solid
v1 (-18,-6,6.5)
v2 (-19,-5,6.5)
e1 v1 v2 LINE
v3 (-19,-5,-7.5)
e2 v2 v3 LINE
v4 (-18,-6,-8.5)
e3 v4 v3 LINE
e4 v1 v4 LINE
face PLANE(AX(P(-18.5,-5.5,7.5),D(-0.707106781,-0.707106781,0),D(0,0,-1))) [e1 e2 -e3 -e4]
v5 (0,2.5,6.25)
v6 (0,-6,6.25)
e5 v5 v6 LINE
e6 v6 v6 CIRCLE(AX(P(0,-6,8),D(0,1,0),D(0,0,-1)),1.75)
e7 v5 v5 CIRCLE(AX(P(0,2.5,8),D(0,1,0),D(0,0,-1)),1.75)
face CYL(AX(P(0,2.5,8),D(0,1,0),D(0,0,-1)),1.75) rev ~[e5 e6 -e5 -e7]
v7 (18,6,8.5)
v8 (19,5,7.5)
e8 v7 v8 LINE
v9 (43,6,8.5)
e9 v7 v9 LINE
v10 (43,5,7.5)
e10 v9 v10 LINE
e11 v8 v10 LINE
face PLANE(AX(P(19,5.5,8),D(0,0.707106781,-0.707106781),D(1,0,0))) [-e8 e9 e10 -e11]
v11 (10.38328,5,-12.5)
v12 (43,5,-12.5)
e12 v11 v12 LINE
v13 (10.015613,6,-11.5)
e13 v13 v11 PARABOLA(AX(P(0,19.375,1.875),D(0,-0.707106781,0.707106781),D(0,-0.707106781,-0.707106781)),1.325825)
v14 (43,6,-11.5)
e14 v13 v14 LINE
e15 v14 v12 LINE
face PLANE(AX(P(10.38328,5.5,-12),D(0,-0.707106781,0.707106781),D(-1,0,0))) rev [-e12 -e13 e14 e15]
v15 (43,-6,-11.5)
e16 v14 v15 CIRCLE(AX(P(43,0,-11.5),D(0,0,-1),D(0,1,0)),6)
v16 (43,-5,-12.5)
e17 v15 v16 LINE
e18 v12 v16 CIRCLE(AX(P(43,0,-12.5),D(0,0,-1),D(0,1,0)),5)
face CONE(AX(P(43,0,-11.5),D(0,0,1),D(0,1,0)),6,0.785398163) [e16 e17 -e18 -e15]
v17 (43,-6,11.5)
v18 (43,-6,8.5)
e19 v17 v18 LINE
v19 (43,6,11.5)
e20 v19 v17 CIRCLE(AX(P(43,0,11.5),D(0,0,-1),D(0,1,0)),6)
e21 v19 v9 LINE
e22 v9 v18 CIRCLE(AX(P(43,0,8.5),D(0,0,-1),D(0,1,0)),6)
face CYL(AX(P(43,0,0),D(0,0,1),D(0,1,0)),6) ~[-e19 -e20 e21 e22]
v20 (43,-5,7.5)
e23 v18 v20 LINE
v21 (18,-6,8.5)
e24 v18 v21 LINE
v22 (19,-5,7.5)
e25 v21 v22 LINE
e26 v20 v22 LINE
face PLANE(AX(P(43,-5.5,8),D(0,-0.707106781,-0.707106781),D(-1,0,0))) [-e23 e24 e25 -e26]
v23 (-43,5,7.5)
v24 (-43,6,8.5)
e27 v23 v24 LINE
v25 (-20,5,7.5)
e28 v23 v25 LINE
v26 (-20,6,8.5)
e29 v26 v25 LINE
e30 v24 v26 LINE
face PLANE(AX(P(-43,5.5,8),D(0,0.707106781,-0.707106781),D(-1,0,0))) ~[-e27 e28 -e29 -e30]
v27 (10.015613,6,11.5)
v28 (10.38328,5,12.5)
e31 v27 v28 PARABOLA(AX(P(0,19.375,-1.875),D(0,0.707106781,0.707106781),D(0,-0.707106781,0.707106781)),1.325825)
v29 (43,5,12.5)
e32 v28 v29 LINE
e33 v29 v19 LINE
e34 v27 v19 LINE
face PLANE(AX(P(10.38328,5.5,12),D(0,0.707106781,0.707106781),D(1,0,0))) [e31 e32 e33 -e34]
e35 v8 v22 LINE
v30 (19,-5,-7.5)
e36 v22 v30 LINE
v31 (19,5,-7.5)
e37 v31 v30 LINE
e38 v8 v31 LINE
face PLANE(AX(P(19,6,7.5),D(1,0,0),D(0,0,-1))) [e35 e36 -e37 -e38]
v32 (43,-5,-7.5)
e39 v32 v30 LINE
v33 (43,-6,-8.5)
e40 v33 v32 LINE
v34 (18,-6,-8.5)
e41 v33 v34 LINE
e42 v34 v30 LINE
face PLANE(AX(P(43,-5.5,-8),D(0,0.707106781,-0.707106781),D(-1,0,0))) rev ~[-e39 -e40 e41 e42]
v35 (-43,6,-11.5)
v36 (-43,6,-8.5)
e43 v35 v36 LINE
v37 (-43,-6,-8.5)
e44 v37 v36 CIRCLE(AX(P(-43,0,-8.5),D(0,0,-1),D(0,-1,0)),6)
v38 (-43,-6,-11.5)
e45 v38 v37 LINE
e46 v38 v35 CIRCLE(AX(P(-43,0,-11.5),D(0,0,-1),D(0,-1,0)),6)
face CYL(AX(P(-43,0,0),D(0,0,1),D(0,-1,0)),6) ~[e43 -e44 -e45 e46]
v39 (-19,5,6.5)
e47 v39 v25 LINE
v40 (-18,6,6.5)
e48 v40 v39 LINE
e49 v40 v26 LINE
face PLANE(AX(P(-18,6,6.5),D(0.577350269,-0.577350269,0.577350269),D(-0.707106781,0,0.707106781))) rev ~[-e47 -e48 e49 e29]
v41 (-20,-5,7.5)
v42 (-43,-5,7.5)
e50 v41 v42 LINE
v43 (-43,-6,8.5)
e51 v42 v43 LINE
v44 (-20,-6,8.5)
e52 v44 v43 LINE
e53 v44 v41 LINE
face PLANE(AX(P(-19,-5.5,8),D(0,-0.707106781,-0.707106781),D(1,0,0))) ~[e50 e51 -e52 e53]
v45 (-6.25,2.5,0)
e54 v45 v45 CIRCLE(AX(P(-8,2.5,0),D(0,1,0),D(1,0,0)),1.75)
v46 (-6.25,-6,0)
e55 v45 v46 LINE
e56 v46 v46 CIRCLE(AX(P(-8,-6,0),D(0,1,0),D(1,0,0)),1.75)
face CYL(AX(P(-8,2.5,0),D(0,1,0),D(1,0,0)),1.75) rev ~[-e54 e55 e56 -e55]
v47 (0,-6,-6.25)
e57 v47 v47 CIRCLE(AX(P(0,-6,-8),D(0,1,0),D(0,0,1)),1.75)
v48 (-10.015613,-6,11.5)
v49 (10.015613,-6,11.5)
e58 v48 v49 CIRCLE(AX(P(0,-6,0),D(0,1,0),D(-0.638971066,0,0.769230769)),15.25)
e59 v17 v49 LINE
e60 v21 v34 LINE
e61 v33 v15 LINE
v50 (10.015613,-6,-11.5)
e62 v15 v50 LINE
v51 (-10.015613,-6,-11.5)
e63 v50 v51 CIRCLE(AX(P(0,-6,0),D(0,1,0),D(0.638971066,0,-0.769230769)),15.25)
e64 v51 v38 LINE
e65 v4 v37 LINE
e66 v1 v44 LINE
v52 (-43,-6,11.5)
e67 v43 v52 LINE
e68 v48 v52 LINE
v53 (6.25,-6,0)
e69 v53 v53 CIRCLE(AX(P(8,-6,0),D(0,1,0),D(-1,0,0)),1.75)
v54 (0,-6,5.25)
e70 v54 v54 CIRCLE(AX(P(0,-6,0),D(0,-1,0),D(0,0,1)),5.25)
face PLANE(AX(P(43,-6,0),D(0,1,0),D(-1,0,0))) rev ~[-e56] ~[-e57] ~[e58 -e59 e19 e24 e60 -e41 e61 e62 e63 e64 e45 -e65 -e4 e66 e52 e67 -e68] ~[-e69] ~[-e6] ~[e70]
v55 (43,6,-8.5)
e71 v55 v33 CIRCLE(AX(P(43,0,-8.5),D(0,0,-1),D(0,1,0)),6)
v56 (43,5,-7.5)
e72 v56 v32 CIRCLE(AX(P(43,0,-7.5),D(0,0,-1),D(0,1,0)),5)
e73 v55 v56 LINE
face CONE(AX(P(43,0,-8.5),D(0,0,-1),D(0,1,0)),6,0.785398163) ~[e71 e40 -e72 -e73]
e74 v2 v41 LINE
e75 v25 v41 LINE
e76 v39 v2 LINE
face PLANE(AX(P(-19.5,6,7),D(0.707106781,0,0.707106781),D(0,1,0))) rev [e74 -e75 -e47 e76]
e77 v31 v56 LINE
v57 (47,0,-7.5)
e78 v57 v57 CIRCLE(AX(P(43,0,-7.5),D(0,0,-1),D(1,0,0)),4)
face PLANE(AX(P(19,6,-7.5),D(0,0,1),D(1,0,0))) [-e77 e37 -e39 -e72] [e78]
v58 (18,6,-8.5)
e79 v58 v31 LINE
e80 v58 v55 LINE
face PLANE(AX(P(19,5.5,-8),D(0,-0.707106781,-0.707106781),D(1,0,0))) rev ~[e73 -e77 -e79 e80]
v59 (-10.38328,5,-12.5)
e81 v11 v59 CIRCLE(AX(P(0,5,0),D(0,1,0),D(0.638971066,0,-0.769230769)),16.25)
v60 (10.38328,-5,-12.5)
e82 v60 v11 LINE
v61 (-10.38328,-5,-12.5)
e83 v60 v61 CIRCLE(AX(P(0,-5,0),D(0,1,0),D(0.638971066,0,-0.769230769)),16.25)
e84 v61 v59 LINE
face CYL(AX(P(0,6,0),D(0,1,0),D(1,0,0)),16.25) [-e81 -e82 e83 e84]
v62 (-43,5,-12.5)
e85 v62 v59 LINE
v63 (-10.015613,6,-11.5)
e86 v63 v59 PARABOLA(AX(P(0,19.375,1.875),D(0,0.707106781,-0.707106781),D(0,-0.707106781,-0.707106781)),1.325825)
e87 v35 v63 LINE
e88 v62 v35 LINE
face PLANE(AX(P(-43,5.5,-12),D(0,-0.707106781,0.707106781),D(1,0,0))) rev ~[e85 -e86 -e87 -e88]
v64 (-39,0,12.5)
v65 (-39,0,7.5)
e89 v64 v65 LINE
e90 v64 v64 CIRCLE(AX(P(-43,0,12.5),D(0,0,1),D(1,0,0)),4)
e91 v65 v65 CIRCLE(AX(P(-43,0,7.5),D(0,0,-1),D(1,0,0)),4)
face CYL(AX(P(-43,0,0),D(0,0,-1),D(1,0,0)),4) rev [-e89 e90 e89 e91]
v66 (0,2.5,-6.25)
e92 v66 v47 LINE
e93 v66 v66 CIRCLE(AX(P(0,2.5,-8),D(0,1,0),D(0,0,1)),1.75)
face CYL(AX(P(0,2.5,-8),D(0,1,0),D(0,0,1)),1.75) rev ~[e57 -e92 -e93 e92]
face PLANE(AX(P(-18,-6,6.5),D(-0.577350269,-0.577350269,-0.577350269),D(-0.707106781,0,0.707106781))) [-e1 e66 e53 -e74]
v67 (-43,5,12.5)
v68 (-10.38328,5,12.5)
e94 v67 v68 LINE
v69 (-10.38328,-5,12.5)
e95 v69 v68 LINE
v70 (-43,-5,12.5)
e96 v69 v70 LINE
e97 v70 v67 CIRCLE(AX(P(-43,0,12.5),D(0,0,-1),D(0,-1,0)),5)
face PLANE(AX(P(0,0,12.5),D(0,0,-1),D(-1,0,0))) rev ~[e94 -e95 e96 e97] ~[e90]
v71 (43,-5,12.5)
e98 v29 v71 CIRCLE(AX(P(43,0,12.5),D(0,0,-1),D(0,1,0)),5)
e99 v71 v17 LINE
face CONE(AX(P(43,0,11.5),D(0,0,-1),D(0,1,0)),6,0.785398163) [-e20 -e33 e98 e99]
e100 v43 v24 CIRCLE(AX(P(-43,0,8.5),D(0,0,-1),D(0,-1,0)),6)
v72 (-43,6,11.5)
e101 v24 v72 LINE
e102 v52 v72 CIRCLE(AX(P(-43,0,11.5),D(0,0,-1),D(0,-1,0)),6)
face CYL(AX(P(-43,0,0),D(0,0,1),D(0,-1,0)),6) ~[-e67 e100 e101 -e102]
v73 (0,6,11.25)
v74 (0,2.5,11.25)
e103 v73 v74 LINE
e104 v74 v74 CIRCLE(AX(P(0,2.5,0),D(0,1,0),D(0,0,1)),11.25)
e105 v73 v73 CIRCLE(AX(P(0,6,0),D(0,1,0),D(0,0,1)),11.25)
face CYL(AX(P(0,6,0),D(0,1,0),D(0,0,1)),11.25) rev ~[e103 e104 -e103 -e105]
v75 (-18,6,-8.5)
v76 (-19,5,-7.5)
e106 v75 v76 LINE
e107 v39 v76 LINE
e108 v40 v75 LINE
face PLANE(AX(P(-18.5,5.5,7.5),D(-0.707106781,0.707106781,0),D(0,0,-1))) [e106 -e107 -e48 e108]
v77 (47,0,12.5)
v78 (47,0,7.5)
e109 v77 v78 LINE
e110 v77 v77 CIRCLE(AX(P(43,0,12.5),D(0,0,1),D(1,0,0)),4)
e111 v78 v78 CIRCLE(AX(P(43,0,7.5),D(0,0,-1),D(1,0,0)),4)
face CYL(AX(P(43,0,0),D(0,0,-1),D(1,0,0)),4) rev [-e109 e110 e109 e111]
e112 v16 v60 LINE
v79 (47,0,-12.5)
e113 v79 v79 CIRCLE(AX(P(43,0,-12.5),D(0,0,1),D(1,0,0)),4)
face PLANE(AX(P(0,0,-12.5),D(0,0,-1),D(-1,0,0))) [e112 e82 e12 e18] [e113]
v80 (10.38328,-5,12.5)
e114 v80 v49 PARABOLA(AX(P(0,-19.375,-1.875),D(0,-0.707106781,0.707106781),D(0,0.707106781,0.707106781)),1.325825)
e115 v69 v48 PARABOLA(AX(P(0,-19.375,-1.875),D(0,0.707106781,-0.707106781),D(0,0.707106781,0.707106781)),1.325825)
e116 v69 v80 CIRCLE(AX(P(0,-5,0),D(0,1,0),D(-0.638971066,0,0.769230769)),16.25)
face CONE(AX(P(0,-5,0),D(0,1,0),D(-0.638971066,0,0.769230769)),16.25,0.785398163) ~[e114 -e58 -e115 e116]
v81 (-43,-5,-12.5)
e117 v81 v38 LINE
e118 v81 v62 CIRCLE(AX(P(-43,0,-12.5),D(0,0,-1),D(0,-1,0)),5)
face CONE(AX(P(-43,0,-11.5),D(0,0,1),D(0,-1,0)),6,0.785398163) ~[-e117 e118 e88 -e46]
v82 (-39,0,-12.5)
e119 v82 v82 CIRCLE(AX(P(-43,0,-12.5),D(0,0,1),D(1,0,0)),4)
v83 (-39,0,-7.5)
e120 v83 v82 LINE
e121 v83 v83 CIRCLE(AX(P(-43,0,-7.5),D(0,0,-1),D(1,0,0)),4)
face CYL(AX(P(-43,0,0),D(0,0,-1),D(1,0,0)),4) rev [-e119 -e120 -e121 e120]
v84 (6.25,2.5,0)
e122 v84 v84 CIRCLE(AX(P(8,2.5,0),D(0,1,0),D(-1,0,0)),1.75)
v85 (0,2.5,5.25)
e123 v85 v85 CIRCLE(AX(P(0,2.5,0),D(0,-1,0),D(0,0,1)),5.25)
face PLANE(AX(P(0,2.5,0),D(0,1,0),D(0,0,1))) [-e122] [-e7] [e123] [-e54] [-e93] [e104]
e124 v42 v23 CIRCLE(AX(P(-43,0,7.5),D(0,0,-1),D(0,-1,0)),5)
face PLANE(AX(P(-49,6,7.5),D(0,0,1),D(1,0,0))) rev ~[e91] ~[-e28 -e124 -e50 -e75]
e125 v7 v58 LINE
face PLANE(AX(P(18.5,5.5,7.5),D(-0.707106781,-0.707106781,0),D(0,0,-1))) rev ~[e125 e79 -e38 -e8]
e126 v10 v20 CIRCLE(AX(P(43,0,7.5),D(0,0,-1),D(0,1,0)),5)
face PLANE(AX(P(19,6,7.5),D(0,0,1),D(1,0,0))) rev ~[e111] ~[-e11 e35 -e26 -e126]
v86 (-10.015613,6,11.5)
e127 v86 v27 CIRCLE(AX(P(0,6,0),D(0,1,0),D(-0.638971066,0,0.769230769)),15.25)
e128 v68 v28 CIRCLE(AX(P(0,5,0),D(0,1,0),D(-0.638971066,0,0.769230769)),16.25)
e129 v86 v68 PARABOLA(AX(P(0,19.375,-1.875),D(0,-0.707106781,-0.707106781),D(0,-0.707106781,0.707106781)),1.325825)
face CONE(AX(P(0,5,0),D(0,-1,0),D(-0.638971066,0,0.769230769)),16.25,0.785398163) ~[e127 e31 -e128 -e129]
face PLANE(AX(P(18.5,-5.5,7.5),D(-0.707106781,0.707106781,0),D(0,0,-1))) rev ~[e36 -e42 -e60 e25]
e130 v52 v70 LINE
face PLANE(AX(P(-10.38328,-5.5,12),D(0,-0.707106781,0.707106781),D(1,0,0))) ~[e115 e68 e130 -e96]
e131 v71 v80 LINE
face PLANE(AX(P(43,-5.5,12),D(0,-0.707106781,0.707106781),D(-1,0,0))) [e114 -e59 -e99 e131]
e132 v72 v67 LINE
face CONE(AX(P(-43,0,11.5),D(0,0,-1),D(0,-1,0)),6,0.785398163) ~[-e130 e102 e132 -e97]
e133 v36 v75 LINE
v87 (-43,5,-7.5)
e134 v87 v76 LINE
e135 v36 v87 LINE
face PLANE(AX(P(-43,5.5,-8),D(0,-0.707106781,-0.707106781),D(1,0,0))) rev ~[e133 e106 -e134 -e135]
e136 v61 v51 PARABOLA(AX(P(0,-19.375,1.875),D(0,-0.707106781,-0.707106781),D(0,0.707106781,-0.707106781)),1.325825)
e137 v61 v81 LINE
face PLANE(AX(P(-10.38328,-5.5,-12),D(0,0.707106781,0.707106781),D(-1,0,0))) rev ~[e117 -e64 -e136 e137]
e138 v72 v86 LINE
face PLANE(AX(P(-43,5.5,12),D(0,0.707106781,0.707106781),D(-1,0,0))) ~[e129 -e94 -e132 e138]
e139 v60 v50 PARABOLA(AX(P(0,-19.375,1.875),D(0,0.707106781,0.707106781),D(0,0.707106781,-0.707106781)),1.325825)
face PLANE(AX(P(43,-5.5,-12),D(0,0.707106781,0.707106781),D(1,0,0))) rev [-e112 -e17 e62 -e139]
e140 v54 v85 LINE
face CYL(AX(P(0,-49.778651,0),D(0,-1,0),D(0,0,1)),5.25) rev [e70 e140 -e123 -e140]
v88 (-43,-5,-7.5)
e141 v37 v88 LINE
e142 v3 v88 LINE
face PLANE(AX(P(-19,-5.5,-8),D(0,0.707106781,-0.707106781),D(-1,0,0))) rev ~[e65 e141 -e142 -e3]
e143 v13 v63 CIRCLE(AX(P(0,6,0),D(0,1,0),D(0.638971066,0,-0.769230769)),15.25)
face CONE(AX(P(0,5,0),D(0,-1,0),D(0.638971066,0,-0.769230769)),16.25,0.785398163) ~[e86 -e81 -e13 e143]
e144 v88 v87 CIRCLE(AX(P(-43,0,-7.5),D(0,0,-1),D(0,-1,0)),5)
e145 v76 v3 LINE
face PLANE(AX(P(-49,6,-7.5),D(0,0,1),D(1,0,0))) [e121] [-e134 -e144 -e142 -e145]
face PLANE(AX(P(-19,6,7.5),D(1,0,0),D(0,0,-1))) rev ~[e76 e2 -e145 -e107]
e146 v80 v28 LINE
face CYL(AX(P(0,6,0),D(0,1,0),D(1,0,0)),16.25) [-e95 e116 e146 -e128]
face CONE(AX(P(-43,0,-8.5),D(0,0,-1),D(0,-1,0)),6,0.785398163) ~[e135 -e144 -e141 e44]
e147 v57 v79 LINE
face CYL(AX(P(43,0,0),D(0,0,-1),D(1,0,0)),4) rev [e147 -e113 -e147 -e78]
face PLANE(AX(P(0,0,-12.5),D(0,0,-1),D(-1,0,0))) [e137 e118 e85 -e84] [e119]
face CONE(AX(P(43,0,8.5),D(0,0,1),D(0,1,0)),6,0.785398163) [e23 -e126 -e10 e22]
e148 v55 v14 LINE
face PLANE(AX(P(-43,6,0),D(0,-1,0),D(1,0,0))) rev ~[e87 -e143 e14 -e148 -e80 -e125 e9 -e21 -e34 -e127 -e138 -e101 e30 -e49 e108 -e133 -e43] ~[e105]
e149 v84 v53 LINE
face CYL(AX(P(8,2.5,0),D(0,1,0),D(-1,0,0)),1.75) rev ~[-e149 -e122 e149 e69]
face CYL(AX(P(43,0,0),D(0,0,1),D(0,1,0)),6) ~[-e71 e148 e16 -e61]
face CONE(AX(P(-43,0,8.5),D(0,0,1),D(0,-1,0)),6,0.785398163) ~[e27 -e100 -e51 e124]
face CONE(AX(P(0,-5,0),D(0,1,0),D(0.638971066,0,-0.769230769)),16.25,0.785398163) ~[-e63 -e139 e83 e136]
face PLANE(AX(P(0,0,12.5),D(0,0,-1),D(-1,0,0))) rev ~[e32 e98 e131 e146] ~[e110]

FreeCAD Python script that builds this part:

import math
import FreeCAD as App
import Part
import Sketcher
Q = App.Units.Quantity


def edges_at(feature, points):
    """Names of the edges that pass closest to the given points."""
    edges = feature.Shape.Edges
    near = lambda p: min(range(len(edges)), key=lambda i: edges[i].distToShape(Part.Vertex(*p))[0])
    return sorted({f"Edge{near(p) + 1}" for p in points})

doc = App.newDocument("Part")
body = doc.addObject("PartDesign::Body", "Body")

# Sketch on XY plane
sketch1 = doc.addObject("Sketcher::SketchObject", "Sketch")
body.addObject(sketch1)
sketch1.AttachmentSupport = (doc.XY_Plane, [""])
sketch1.MapMode = "FlatFace"
sketch1.addGeometry([
    Part.LineSegment(App.Vector(43, 6, 0), App.Vector(-43, 6, 0)),  # 0
    Part.ArcOfCircle(Part.Circle(App.Vector(-43, 0, 0), App.Vector(0, 0, 1), 6), math.radians(90), math.radians(270)),  # 1
    Part.LineSegment(App.Vector(-43, -6, 0), App.Vector(43, -6, 0)),  # 2
    Part.ArcOfCircle(Part.Circle(App.Vector(43, 0, 0), App.Vector(0, 0, 1), 6), math.radians(-90), math.radians(90)),  # 3
    Part.Circle(App.Vector(43, 0, 0), App.Vector(0, 0, 1), 4),  # 4
    Part.Circle(App.Vector(-43, 0, 0), App.Vector(0, 0, 1), 4),  # 5
], False)
sketch1.addConstraint([
    Sketcher.Constraint("Tangent", 0, 2, 1, 1),
    Sketcher.Constraint("Tangent", 1, 2, 2, 1),
    Sketcher.Constraint("Tangent", 2, 2, 3, 1),
    Sketcher.Constraint("Tangent", 3, 2, 0, 1),
    Sketcher.Constraint("Horizontal", 0),
    Sketcher.Constraint("Horizontal", 2),
    Sketcher.Constraint("Coincident", 4, 3, 3, 3),
    Sketcher.Constraint("Coincident", 5, 3, 1, 3),
    Sketcher.Constraint("Equal", 4, 5),
    Sketcher.Constraint("Symmetric", 1, 3, 3, 3, -1, 1),
    Sketcher.Constraint("Diameter", 4, Q("8 mm")),
    Sketcher.Constraint("Radius", 1, Q("6 mm")),
    Sketcher.Constraint("DistanceX", 0, 2, 0, 1, Q("86 mm")),
])
pad1 = doc.addObject("PartDesign::Pad", "Pad")
body.addObject(pad1)
pad1.Profile = sketch1
pad1.Length = 25
pad1.Midplane = True

# Sketch on XZ plane
sketch2 = doc.addObject("Sketcher::SketchObject", "Sketch001")
body.addObject(sketch2)
sketch2.AttachmentSupport = (doc.XZ_Plane, [""])
sketch2.MapMode = "FlatFace"
sketch2.AttachmentOffset = App.Placement(App.Vector(0, 0, -6), App.Rotation())
sketch2.addGeometry([
    Part.LineSegment(App.Vector(-49, -7.5, 0), App.Vector(-49, 7.5, 0)),  # 0
    Part.LineSegment(App.Vector(-49, 7.5, 0), App.Vector(-19, 7.5, 0)),  # 1
    Part.LineSegment(App.Vector(-19, 7.5, 0), App.Vector(-19, -7.5, 0)),  # 2
    Part.LineSegment(App.Vector(-19, -7.5, 0), App.Vector(-49, -7.5, 0)),  # 3
    Part.LineSegment(App.Vector(19, -7.5, 0), App.Vector(19, 7.5, 0)),  # 4
    Part.LineSegment(App.Vector(19, 7.5, 0), App.Vector(49, 7.5, 0)),  # 5
    Part.LineSegment(App.Vector(49, 7.5, 0), App.Vector(49, -7.5, 0)),  # 6
    Part.LineSegment(App.Vector(49, -7.5, 0), App.Vector(19, -7.5, 0)),  # 7
], False)
sketch2.addConstraint([
    Sketcher.Constraint("Coincident", 0, 2, 1, 1),
    Sketcher.Constraint("Coincident", 1, 2, 2, 1),
    Sketcher.Constraint("Coincident", 2, 2, 3, 1),
    Sketcher.Constraint("Coincident", 3, 2, 0, 1),
    Sketcher.Constraint("Coincident", 4, 2, 5, 1),
    Sketcher.Constraint("Coincident", 5, 2, 6, 1),
    Sketcher.Constraint("Coincident", 6, 2, 7, 1),
    Sketcher.Constraint("Coincident", 7, 2, 4, 1),
    Sketcher.Constraint("Vertical", 0),
    Sketcher.Constraint("Horizontal", 1),
    Sketcher.Constraint("Vertical", 2),
    Sketcher.Constraint("Horizontal", 3),
    Sketcher.Constraint("Vertical", 4),
    Sketcher.Constraint("Horizontal", 5),
    Sketcher.Constraint("Vertical", 6),
    Sketcher.Constraint("Horizontal", 7),
    Sketcher.Constraint("Symmetric", 2, 2, 4, 2, -1, 1),
    Sketcher.Constraint("Symmetric", 0, 2, 6, 2, -1, 1),
    Sketcher.Constraint("Horizontal", 1, 2, 4, 2),
    Sketcher.Constraint("DistanceX", 1, 1, 1, 2, Q("30 mm")),
    Sketcher.Constraint("DistanceY", 0, 1, 0, 2, Q("15 mm")),
    Sketcher.Constraint("DistanceX", 0, 2, -1, 1, Q("49 mm")),
])
pocket1 = doc.addObject("PartDesign::Pocket", "Pocket")
body.addObject(pocket1)
pocket1.Profile = sketch2
pocket1.Type = "ThroughAll"
pocket1.Reversed = True

# Sketch on XZ plane
sketch3 = doc.addObject("Sketcher::SketchObject", "Sketch002")
body.addObject(sketch3)
sketch3.AttachmentSupport = (doc.XZ_Plane, [""])
sketch3.MapMode = "FlatFace"
sketch3.AttachmentOffset = App.Placement(App.Vector(0, 0, -6), App.Rotation())
sketch3.addGeometry(Part.Circle(App.Vector(0, 0, 0), App.Vector(0, 0, 1), 4), False)
sketch3.addConstraint([
    Sketcher.Constraint("Coincident", 0, 3, -1, 1),
    Sketcher.Constraint("Diameter", 0, Q("8 mm")),
])
pocket2 = doc.addObject("PartDesign::Pocket", "Pocket001")
body.addObject(pocket2)
pocket2.Profile = sketch3
pocket2.Type = "ThroughAll"
pocket2.Reversed = True

# Sketch on XZ plane
sketch4 = doc.addObject("Sketcher::SketchObject", "Sketch003")
body.addObject(sketch4)
sketch4.AttachmentSupport = (doc.XZ_Plane, [""])
sketch4.MapMode = "FlatFace"
sketch4.AttachmentOffset = App.Placement(App.Vector(0, 0, -6), App.Rotation())
sketch4.addGeometry(Part.Circle(App.Vector(0, 0, 0), App.Vector(0, 0, 1), 11.25), False)
sketch4.addConstraint([
    Sketcher.Constraint("Coincident", 0, 3, -1, 1),
    Sketcher.Constraint("Diameter", 0, Q("22.5 mm")),
])
pocket3 = doc.addObject("PartDesign::Pocket", "Pocket002")
body.addObject(pocket3)
pocket3.Profile = sketch4
pocket3.Length = 3.5
pocket3.Reversed = True

# Sketch on XZ plane
sketch5 = doc.addObject("Sketcher::SketchObject", "Sketch004")
body.addObject(sketch5)
sketch5.AttachmentSupport = (doc.XZ_Plane, [""])
sketch5.MapMode = "FlatFace"
sketch5.AttachmentOffset = App.Placement(App.Vector(0, 0, -2.5), App.Rotation())
sketch5.addGeometry(Part.Circle(App.Vector(0, 0, 0), App.Vector(0, 0, 1), 5.25), False)
sketch5.addConstraint([
    Sketcher.Constraint("Coincident", 0, 3, -1, 1),
    Sketcher.Constraint("Diameter", 0, Q("10.5 mm")),
])
pocket4 = doc.addObject("PartDesign::Pocket", "Pocket003")
body.addObject(pocket4)
pocket4.Profile = sketch5
pocket4.Type = "ThroughAll"
pocket4.Midplane = True

# Sketch on XZ plane
sketch6 = doc.addObject("Sketcher::SketchObject", "Sketch005")
body.addObject(sketch6)
sketch6.AttachmentSupport = (doc.XZ_Plane, [""])
sketch6.MapMode = "FlatFace"
sketch6.AttachmentOffset = App.Placement(App.Vector(0, 0, -6), App.Rotation())
sketch6.addGeometry([
    Part.Circle(App.Vector(0, 0, 0), App.Vector(0, 0, 1), 16.25),
    Part.Circle(App.Vector(0, 0, 0), App.Vector(0, 0, 1), 11.25),
], False)
sketch6.addConstraint([
    Sketcher.Constraint("Coincident", 0, 3, -1, 1),
    Sketcher.Constraint("Coincident", 1, 3, -1, 1),
    Sketcher.Constraint("Diameter", 0, Q("32.5 mm")),
    Sketcher.Constraint("Diameter", 1, Q("22.5 mm")),
])
pad2 = doc.addObject("PartDesign::Pad", "Pad001")
body.addObject(pad2)
pad2.Profile = sketch6
pad2.Length = 12
doc.recompute()

chamfer = doc.addObject("PartDesign::Chamfer", "Chamfer")
body.addObject(chamfer)
chamfer.Base = (pad2, edges_at(pad2, [
    (0, -6, -16.25),
    (0, 6, -16.25),
    (0, 6, 16.25),
    (0, -6, 16.25),
    (49, 0, 12.5),
    (26.692, 6, 12.5),
    (-49, 0, -7.5),
    (-31, -6, -7.5),
    (-49, 0, 7.5),
    (-31, -6, 7.5),
    (-19, 0, 7.5),
    (-19, -6, 0),
    (-31, 6, 7.5),
    (-19, 6, 0),
    (-31, 6, -7.5),
    (-49, 0, 12.5),
    (26.692, 6, -12.5),
    (31, 6, 7.5),
    (31, 6, -7.5),
    (19, 6, 0),
    (49, 0, -7.5),
    (31, -6, -7.5),
    (49, 0, 7.5),
    (31, -6, 7.5),
    (49, 0, -12.5),
    (19, -6, 0),
    (-26.692, -6, -12.5),
    (-49, 0, -12.5),
    (-26.692, -6, 12.5),
    (-26.692, 6, 12.5),
    (-26.692, 6, -12.5),
    (26.692, -6, -12.5),
    (26.692, -6, 12.5),
]))
chamfer.Size = 1

# Sketch on XZ plane
sketch7 = doc.addObject("Sketcher::SketchObject", "Sketch006")
body.addObject(sketch7)
sketch7.AttachmentSupport = (doc.XZ_Plane, [""])
sketch7.MapMode = "FlatFace"
sketch7.AttachmentOffset = App.Placement(App.Vector(0, 0, -2.5), App.Rotation())
sketch7.addGeometry(Part.Circle(App.Vector(0, -8, 0), App.Vector(0, 0, 1), 1.75), False)
sketch7.addConstraint([
    Sketcher.Constraint("PointOnObject", 0, 3, -2),
    Sketcher.Constraint("Diameter", 0, Q("3.5 mm")),
    Sketcher.Constraint("DistanceY", 0, 3, -1, 1, Q("8 mm")),
])
pocket5 = doc.addObject("PartDesign::Pocket", "Pocket004")
body.addObject(pocket5)
pocket5.Profile = sketch7
pocket5.Length = 10
pocket5.Reversed = True
doc.recompute()

polarpattern = doc.addObject("PartDesign::PolarPattern", "PolarPattern")
body.addObject(polarpattern)
polarpattern.Originals = [pocket5]
polarpattern.Axis = (doc.Y_Axis, [""])
polarpattern.Angle = 360
polarpattern.Occurrences = 4
body.Tip = polarpattern

doc.recompute()
